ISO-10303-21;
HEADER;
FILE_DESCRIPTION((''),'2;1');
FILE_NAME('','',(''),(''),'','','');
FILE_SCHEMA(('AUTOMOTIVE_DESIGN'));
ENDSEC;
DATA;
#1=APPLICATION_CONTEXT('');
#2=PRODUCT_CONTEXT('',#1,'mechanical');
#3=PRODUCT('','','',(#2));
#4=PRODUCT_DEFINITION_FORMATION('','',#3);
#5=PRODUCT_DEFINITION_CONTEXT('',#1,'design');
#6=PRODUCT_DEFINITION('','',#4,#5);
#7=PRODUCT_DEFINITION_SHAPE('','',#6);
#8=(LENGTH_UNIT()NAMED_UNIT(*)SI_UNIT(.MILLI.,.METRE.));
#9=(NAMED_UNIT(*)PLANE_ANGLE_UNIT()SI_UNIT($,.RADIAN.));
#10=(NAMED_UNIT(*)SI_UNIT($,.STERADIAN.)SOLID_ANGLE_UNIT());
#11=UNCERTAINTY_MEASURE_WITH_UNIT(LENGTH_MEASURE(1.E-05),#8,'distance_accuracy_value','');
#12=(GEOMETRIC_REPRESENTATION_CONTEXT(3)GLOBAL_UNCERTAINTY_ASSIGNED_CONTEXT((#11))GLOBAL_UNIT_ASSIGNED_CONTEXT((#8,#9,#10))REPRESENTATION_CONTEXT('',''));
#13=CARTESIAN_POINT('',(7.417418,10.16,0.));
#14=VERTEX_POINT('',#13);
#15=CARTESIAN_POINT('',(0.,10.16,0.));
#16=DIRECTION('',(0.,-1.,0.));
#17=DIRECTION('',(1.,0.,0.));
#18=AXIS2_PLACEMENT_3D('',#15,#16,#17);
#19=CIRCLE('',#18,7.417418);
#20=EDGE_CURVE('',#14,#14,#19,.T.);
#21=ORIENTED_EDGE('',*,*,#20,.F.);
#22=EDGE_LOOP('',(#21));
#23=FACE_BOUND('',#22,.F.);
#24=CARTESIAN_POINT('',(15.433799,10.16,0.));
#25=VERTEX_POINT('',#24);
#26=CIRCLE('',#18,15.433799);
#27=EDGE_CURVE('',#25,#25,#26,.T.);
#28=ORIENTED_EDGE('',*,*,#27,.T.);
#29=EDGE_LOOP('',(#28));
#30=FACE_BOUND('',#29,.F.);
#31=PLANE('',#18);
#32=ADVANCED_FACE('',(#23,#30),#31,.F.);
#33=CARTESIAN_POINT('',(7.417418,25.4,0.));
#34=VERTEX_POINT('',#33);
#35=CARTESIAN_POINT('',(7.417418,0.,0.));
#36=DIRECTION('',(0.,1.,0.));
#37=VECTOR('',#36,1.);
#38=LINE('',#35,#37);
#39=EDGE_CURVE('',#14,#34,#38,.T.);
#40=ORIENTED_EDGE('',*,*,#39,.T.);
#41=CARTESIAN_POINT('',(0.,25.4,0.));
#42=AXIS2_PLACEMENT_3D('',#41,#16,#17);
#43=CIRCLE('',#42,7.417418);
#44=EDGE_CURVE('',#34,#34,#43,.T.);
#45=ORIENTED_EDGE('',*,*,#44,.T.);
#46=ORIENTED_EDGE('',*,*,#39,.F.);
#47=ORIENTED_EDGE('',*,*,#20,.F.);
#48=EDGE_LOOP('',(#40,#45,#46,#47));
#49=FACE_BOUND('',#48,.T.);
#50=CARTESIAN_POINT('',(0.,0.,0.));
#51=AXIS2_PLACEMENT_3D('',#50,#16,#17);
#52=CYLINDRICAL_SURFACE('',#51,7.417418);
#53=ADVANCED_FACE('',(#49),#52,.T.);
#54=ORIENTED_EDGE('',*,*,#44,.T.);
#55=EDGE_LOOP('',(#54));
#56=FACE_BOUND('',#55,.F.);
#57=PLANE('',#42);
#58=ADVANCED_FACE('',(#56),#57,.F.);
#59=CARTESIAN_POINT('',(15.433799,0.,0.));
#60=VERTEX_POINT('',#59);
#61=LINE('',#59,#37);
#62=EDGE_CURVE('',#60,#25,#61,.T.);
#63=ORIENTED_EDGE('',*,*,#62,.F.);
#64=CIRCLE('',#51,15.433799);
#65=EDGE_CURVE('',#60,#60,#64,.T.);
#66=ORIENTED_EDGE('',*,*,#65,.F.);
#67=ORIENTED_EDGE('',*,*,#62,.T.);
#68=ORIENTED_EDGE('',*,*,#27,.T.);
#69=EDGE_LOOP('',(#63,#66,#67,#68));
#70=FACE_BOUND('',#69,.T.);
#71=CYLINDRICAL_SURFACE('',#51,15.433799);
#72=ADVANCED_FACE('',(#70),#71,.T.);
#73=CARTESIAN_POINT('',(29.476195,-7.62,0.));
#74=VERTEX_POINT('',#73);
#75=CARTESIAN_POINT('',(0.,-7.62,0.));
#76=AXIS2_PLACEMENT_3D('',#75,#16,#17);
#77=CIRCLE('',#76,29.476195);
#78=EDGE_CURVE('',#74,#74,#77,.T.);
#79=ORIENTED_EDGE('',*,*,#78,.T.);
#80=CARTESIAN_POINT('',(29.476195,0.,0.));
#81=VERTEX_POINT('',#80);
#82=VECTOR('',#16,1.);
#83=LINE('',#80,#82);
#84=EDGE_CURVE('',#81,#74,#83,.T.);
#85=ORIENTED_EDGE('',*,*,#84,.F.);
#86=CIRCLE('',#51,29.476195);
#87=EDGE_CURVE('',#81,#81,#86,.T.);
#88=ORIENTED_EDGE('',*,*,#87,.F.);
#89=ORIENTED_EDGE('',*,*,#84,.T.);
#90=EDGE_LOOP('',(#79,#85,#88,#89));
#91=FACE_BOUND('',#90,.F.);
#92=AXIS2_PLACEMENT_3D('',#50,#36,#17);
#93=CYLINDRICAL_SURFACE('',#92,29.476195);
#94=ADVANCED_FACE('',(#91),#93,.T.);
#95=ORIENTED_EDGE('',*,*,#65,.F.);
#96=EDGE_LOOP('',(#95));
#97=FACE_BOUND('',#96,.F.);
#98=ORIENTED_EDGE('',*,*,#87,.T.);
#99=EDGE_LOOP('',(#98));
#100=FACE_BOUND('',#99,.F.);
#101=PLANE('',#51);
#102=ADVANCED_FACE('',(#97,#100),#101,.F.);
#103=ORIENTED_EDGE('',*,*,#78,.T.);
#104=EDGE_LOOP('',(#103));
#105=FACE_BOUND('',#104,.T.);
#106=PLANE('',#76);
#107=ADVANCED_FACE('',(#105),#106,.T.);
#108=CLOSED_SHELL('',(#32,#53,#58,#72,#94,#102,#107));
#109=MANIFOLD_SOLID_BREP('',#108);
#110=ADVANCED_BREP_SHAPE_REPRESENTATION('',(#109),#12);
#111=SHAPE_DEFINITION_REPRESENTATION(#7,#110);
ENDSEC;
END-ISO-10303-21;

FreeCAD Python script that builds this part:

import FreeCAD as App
import Part
import Sketcher

V = App.Vector
Q = App.Units.Quantity

doc = App.newDocument("Part")
body = doc.addObject("PartDesign::Body", "Body")

# Sketch on XZ plane
sketch1 = body.newObject("Sketcher::SketchObject", "Sketch")
sketch1.AttachmentSupport = (doc.getObject("XZ_Plane"), [""])
sketch1.MapMode = "FlatFace"
sketch1.addGeometry(Part.Circle(V(0, 0, 0), V(0, 0, 1), 29.476195), False)
sketch1.addConstraint([
    Sketcher.Constraint("Coincident", 0, 3, -1, 1),
    Sketcher.Constraint("Diameter", 0, 58.952389),
])
pad1 = body.newObject("PartDesign::Pad", "Pad")
pad1.Profile = sketch1
pad1.Length = Q("0.3 in")

# Sketch on XZ plane
sketch2 = body.newObject("Sketcher::SketchObject", "Sketch001")
sketch2.AttachmentSupport = (doc.getObject("XZ_Plane"), [""])
sketch2.MapMode = "FlatFace"
sketch2.addGeometry(Part.Circle(V(0, 0, 0), V(0, 0, 1), 15.433799), False)
sketch2.addConstraint([
    Sketcher.Constraint("Coincident", 0, 3, -1, 1),
    Sketcher.Constraint("Diameter", 0, 30.867598),
])
pad2 = body.newObject("PartDesign::Pad", "Pad001")
pad2.Profile = sketch2
pad2.Length = Q("0.4 in")
pad2.Reversed = True

# Sketch on XZ plane
sketch3 = body.newObject("Sketcher::SketchObject", "Sketch002")
sketch3.AttachmentSupport = (doc.getObject("XZ_Plane"), [""])
sketch3.MapMode = "FlatFace"
sketch3.addGeometry(Part.Circle(V(0, 0, 0), V(0, 0, 1), 7.417418), False)
sketch3.addConstraint([
    Sketcher.Constraint("Coincident", 0, 3, -1, 1),
    Sketcher.Constraint("Diameter", 0, 14.834835),
])
pad3 = body.newObject("PartDesign::Pad", "Pad002")
pad3.Profile = sketch3
pad3.Length = Q("1 in")
pad3.Reversed = True

doc.recompute()
